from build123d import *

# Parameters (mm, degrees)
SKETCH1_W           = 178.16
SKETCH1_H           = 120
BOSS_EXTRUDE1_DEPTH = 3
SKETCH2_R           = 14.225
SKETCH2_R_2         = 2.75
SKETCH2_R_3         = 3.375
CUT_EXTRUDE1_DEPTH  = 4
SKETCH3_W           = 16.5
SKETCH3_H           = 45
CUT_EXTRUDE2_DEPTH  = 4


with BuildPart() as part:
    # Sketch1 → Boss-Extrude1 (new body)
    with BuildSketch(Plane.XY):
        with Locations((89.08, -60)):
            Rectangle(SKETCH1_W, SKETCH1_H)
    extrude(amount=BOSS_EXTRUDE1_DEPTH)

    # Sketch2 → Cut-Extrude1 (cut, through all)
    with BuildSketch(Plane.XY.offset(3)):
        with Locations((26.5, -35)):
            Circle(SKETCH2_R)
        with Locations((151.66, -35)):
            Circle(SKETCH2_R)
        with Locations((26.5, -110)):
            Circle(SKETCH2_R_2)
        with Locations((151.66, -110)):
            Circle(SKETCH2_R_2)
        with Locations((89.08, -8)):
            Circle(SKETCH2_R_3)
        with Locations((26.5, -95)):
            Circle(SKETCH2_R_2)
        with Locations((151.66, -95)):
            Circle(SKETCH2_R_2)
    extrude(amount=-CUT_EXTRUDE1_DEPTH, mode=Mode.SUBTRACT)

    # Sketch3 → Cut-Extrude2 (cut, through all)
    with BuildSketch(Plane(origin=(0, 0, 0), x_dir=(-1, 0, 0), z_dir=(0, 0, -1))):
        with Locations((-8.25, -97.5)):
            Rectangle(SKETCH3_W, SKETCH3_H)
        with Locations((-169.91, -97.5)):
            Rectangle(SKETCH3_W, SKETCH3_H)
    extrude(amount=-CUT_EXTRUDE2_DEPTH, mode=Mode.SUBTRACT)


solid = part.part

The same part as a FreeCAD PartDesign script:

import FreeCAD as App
import Part
import Sketcher

V = App.Vector
Q = App.Units.Quantity

doc = App.newDocument("Part")
body = doc.addObject("PartDesign::Body", "Body")

sketch1 = body.newObject("Sketcher::SketchObject", "Sketch")
sketch1.AttachmentSupport = (doc.getObject("XY_Plane"), [""])
sketch1.MapMode = "FlatFace"
sketch1.addGeometry(Part.LineSegment(V(0, 0, 0), V(0, -120, 0)), False)
sketch1.addGeometry(Part.LineSegment(V(0, -120, 0), V(178, -120, 0)), False)
sketch1.addGeometry(Part.LineSegment(V(178, -120, 0), V(178, 0, 0)), False)
sketch1.addGeometry(Part.LineSegment(V(178, 0, 0), V(0, 0, 0)), False)
sketch1.addConstraint(Sketcher.Constraint("Coincident", 0, 2, 1, 1))
sketch1.addConstraint(Sketcher.Constraint("Coincident", 1, 2, 2, 1))
sketch1.addConstraint(Sketcher.Constraint("Coincident", 2, 2, 3, 1))
sketch1.addConstraint(Sketcher.Constraint("Coincident", 3, 2, 0, 1))
sketch1.addConstraint(Sketcher.Constraint("Vertical", 0))
sketch1.addConstraint(Sketcher.Constraint("Horizontal", 1))
sketch1.addConstraint(Sketcher.Constraint("Vertical", 2))
sketch1.addConstraint(Sketcher.Constraint("Horizontal", 3))
sketch1.addConstraint(Sketcher.Constraint("Coincident", 3, 2, -1, 1))
sketch1.addConstraint(Sketcher.Constraint("DistanceY", 0, 2, 0, 1, Q("120 mm")))
sketch1.addConstraint(Sketcher.Constraint("DistanceX", 1, 1, 1, 2, Q("178.16 mm")))
pad1 = body.newObject("PartDesign::Pad", "Pad")
pad1.Profile = sketch1
pad1.Length = 3

sketch2 = body.newObject("Sketcher::SketchObject", "Sketch001")
sketch2.AttachmentSupport = (doc.getObject("XY_Plane"), [""])
sketch2.MapMode = "FlatFace"
sketch2.AttachmentOffset = App.Placement(V(0, 0, 3), App.Rotation())
sketch2.addGeometry(Part.Circle(V(26.5, -35, 0), V(0, 0, 1), 14.2), False)
sketch2.addGeometry(Part.Circle(V(151.7, -35, 0), V(0, 0, 1), 14.2), False)
sketch2.addGeometry(Part.Circle(V(26.5, -110, 0), V(0, 0, 1), 2.8), False)
sketch2.addGeometry(Part.Circle(V(151.7, -110, 0), V(0, 0, 1), 2.8), False)
sketch2.addGeometry(Part.Circle(V(89.1, -8, 0), V(0, 0, 1), 3.4), False)
sketch2.addGeometry(Part.Circle(V(26.5, -95, 0), V(0, 0, 1), 2.8), False)
sketch2.addGeometry(Part.Circle(V(151.7, -95, 0), V(0, 0, 1), 2.8), False)
sketch2.addConstraint(Sketcher.Constraint("Equal", 0, 1))
sketch2.addConstraint(Sketcher.Constraint("Equal", 2, 3))
sketch2.addConstraint(Sketcher.Constraint("Equal", 3, 5))
sketch2.addConstraint(Sketcher.Constraint("Equal", 5, 6))
sketch2.addConstraint(Sketcher.Constraint("Horizontal", 0, 3, 1, 3))
sketch2.addConstraint(Sketcher.Constraint("Horizontal", 2, 3, 3, 3))
sketch2.addConstraint(Sketcher.Constraint("Horizontal", 5, 3, 6, 3))
sketch2.addConstraint(Sketcher.Constraint("Vertical", 0, 3, 2, 3))
sketch2.addConstraint(Sketcher.Constraint("Vertical", 1, 3, 3, 3))
sketch2.addConstraint(Sketcher.Constraint("Vertical", 2, 3, 5, 3))
sketch2.addConstraint(Sketcher.Constraint("Vertical", 3, 3, 6, 3))
sketch2.addConstraint(Sketcher.Constraint("Diameter", 2, Q("5.5 mm")))
sketch2.addConstraint(Sketcher.Constraint("Diameter", 0, Q("28.45 mm")))
sketch2.addConstraint(Sketcher.Constraint("Diameter", 4, Q("6.75 mm")))
sketch2.addConstraint(Sketcher.Constraint("DistanceY", 0, 3, -1, 1, Q("35 mm")))
sketch2.addConstraint(Sketcher.Constraint("DistanceY", 2, 3, -1, 1, Q("110 mm")))
sketch2.addConstraint(Sketcher.Constraint("DistanceY", 4, 3, -1, 1, Q("8 mm")))
sketch2.addConstraint(Sketcher.Constraint("DistanceY", 5, 3, -1, 1, Q("95 mm")))
sketch2.addConstraint(Sketcher.Constraint("DistanceX", -1, 1, 0, 3, Q("26.5 mm")))
sketch2.addConstraint(Sketcher.Constraint("DistanceX", -1, 1, 1, 3, Q("151.66 mm")))
sketch2.addConstraint(Sketcher.Constraint("DistanceX", -1, 1, 4, 3, Q("89.08 mm")))
pocket1 = body.newObject("PartDesign::Pocket", "Pocket")
pocket1.Profile = sketch2
pocket1.Type = "ThroughAll"

sketch3 = body.newObject("Sketcher::SketchObject", "Sketch002")
sketch3.AttachmentSupport = (doc.getObject("XY_Plane"), [""])
sketch3.MapMode = "FlatFace"
sketch3.addGeometry(Part.LineSegment(V(16, -75, 0), V(16, -120, 0)), False)
sketch3.addGeometry(Part.LineSegment(V(16, -120, 0), V(0, -120, 0)), False)
sketch3.addGeometry(Part.LineSegment(V(0, -120, 0), V(0, -75, 0)), False)
sketch3.addGeometry(Part.LineSegment(V(0, -75, 0), V(16, -75, 0)), False)
sketch3.addGeometry(Part.LineSegment(V(178, -75, 0), V(178, -120, 0)), False)
sketch3.addGeometry(Part.LineSegment(V(178, -120, 0), V(162, -120, 0)), False)
sketch3.addGeometry(Part.LineSegment(V(162, -120, 0), V(162, -75, 0)), False)
sketch3.addGeometry(Part.LineSegment(V(162, -75, 0), V(178, -75, 0)), False)
sketch3.addConstraint(Sketcher.Constraint("Coincident", 0, 2, 1, 1))
sketch3.addConstraint(Sketcher.Constraint("Coincident", 1, 2, 2, 1))
sketch3.addConstraint(Sketcher.Constraint("Coincident", 2, 2, 3, 1))
sketch3.addConstraint(Sketcher.Constraint("Coincident", 3, 2, 0, 1))
sketch3.addConstraint(Sketcher.Constraint("Coincident", 4, 2, 5, 1))
sketch3.addConstraint(Sketcher.Constraint("Coincident", 5, 2, 6, 1))
sketch3.addConstraint(Sketcher.Constraint("Coincident", 6, 2, 7, 1))
sketch3.addConstraint(Sketcher.Constraint("Coincident", 7, 2, 4, 1))
sketch3.addConstraint(Sketcher.Constraint("Vertical", 0))
sketch3.addConstraint(Sketcher.Constraint("Horizontal", 1))
sketch3.addConstraint(Sketcher.Constraint("Vertical", 2))
sketch3.addConstraint(Sketcher.Constraint("Horizontal", 3))
sketch3.addConstraint(Sketcher.Constraint("Vertical", 4))
sketch3.addConstraint(Sketcher.Constraint("Horizontal", 5))
sketch3.addConstraint(Sketcher.Constraint("Vertical", 6))
sketch3.addConstraint(Sketcher.Constraint("Horizontal", 7))
sketch3.addConstraint(Sketcher.Constraint("PointOnObject", 1, 2, -2))
sketch3.addConstraint(Sketcher.Constraint("Horizontal", 1, 2, 4, 2))
sketch3.addConstraint(Sketcher.Constraint("Horizontal", 3, 2, 6, 2))
sketch3.addConstraint(Sketcher.Constraint("Equal", 3, 5))
sketch3.addConstraint(Sketcher.Constraint("DistanceY", 0, 2, 0, 1, Q("45 mm")))
sketch3.addConstraint(Sketcher.Constraint("DistanceX", 1, 2, 1, 1, Q("16.5 mm")))
sketch3.addConstraint(Sketcher.Constraint("DistanceY", 0, 2, -1, 1, Q("120 mm")))
sketch3.addConstraint(Sketcher.Constraint("DistanceX", -1, 1, 4, 2, Q("178.16 mm")))
pocket2 = body.newObject("PartDesign::Pocket", "Pocket001")
pocket2.Profile = sketch3
pocket2.Type = "ThroughAll"
pocket2.Reversed = True

doc.recompute()
